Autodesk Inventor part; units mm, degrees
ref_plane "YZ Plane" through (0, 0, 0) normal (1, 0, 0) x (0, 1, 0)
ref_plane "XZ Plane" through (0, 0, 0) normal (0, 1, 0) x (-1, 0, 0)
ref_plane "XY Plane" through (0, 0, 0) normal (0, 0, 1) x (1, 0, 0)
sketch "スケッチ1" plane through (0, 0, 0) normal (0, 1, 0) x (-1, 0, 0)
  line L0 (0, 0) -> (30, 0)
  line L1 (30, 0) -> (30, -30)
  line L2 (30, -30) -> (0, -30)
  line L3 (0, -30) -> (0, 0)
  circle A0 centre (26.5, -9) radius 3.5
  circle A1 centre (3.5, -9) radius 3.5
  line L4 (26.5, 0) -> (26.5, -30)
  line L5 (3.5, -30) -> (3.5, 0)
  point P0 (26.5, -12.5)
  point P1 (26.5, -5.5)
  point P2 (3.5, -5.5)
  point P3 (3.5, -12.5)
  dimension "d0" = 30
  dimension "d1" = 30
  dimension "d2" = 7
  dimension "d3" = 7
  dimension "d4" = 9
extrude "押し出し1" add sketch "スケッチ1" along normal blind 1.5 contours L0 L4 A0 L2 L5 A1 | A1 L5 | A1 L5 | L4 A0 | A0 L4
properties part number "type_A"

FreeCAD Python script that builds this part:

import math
import FreeCAD as App
import Part
import Sketcher

doc = App.newDocument("Part")
body = doc.addObject("PartDesign::Body", "Body")

# Sketch on XZ plane
sketch1 = doc.addObject("Sketcher::SketchObject", "Sketch")
body.addObject(sketch1)
sketch1.AttachmentSupport = (doc.XZ_Plane, [""])
sketch1.MapMode = "FlatFace"
sketch1.addGeometry([
    Part.LineSegment(App.Vector(-26.5, 0, 0), App.Vector(-3.5, 0, 0)),  # 0
    Part.LineSegment(App.Vector(-3.5, 0, 0), App.Vector(-3.5, -5.5, 0)),  # 1
    Part.ArcOfCircle(Part.Circle(App.Vector(-3.5, -9, 0), App.Vector(0, 0, 1), 3.5), math.radians(-90), math.radians(90)),  # 2
    Part.LineSegment(App.Vector(-3.5, -12.5, 0), App.Vector(-3.5, -30, 0)),  # 3
    Part.LineSegment(App.Vector(-3.5, -30, 0), App.Vector(-26.5, -30, 0)),  # 4
    Part.LineSegment(App.Vector(-26.5, -30, 0), App.Vector(-26.5, -12.5, 0)),  # 5
    Part.ArcOfCircle(Part.Circle(App.Vector(-26.5, -9, 0), App.Vector(0, 0, 1), 3.5), math.radians(90), math.radians(270)),  # 6
    Part.LineSegment(App.Vector(-26.5, -5.5, 0), App.Vector(-26.5, 0, 0)),  # 7
], False)
sketch1.addConstraint([
    Sketcher.Constraint("Coincident", 0, 2, 1, 1),
    Sketcher.Constraint("Coincident", 1, 2, 2, 2),
    Sketcher.Constraint("Coincident", 2, 1, 3, 1),
    Sketcher.Constraint("Coincident", 3, 2, 4, 1),
    Sketcher.Constraint("Coincident", 4, 2, 5, 1),
    Sketcher.Constraint("Coincident", 5, 2, 6, 2),
    Sketcher.Constraint("Coincident", 6, 1, 7, 1),
    Sketcher.Constraint("Coincident", 7, 2, 0, 1),
    Sketcher.Constraint("Horizontal", 0),
    Sketcher.Constraint("Vertical", 1),
    Sketcher.Constraint("Vertical", 3),
    Sketcher.Constraint("Horizontal", 4),
    Sketcher.Constraint("Vertical", 5),
    Sketcher.Constraint("Vertical", 7),
    Sketcher.Constraint("Equal", 2, 6),
    Sketcher.Constraint("PointOnObject", 0, 2, -1),
    Sketcher.Constraint("Horizontal", 2, 3, 6, 3),
    Sketcher.Constraint("Vertical", 2, 3, 0, 2),
    Sketcher.Constraint("Vertical", 1, 2, 2, 1),
    Sketcher.Constraint("Vertical", 6, 3, 4, 2),
    Sketcher.Constraint("Vertical", 5, 2, 6, 1),
    Sketcher.Constraint("Radius", 2, 3.5),
    Sketcher.Constraint("DistanceY", 2, 3, -1, 1, 9.0),
    Sketcher.Constraint("DistanceY", 3, 2, -1, 1, 30.0),
    Sketcher.Constraint("DistanceX", 0, 1, 0, 2, 23.0),
    Sketcher.Constraint("DistanceX", 2, 3, -1, 1, 3.5),
])
pad1 = doc.addObject("PartDesign::Pad", "Pad")
body.addObject(pad1)
pad1.Profile = sketch1
pad1.Length = 1.5
pad1.Reversed = True

doc.recompute()
